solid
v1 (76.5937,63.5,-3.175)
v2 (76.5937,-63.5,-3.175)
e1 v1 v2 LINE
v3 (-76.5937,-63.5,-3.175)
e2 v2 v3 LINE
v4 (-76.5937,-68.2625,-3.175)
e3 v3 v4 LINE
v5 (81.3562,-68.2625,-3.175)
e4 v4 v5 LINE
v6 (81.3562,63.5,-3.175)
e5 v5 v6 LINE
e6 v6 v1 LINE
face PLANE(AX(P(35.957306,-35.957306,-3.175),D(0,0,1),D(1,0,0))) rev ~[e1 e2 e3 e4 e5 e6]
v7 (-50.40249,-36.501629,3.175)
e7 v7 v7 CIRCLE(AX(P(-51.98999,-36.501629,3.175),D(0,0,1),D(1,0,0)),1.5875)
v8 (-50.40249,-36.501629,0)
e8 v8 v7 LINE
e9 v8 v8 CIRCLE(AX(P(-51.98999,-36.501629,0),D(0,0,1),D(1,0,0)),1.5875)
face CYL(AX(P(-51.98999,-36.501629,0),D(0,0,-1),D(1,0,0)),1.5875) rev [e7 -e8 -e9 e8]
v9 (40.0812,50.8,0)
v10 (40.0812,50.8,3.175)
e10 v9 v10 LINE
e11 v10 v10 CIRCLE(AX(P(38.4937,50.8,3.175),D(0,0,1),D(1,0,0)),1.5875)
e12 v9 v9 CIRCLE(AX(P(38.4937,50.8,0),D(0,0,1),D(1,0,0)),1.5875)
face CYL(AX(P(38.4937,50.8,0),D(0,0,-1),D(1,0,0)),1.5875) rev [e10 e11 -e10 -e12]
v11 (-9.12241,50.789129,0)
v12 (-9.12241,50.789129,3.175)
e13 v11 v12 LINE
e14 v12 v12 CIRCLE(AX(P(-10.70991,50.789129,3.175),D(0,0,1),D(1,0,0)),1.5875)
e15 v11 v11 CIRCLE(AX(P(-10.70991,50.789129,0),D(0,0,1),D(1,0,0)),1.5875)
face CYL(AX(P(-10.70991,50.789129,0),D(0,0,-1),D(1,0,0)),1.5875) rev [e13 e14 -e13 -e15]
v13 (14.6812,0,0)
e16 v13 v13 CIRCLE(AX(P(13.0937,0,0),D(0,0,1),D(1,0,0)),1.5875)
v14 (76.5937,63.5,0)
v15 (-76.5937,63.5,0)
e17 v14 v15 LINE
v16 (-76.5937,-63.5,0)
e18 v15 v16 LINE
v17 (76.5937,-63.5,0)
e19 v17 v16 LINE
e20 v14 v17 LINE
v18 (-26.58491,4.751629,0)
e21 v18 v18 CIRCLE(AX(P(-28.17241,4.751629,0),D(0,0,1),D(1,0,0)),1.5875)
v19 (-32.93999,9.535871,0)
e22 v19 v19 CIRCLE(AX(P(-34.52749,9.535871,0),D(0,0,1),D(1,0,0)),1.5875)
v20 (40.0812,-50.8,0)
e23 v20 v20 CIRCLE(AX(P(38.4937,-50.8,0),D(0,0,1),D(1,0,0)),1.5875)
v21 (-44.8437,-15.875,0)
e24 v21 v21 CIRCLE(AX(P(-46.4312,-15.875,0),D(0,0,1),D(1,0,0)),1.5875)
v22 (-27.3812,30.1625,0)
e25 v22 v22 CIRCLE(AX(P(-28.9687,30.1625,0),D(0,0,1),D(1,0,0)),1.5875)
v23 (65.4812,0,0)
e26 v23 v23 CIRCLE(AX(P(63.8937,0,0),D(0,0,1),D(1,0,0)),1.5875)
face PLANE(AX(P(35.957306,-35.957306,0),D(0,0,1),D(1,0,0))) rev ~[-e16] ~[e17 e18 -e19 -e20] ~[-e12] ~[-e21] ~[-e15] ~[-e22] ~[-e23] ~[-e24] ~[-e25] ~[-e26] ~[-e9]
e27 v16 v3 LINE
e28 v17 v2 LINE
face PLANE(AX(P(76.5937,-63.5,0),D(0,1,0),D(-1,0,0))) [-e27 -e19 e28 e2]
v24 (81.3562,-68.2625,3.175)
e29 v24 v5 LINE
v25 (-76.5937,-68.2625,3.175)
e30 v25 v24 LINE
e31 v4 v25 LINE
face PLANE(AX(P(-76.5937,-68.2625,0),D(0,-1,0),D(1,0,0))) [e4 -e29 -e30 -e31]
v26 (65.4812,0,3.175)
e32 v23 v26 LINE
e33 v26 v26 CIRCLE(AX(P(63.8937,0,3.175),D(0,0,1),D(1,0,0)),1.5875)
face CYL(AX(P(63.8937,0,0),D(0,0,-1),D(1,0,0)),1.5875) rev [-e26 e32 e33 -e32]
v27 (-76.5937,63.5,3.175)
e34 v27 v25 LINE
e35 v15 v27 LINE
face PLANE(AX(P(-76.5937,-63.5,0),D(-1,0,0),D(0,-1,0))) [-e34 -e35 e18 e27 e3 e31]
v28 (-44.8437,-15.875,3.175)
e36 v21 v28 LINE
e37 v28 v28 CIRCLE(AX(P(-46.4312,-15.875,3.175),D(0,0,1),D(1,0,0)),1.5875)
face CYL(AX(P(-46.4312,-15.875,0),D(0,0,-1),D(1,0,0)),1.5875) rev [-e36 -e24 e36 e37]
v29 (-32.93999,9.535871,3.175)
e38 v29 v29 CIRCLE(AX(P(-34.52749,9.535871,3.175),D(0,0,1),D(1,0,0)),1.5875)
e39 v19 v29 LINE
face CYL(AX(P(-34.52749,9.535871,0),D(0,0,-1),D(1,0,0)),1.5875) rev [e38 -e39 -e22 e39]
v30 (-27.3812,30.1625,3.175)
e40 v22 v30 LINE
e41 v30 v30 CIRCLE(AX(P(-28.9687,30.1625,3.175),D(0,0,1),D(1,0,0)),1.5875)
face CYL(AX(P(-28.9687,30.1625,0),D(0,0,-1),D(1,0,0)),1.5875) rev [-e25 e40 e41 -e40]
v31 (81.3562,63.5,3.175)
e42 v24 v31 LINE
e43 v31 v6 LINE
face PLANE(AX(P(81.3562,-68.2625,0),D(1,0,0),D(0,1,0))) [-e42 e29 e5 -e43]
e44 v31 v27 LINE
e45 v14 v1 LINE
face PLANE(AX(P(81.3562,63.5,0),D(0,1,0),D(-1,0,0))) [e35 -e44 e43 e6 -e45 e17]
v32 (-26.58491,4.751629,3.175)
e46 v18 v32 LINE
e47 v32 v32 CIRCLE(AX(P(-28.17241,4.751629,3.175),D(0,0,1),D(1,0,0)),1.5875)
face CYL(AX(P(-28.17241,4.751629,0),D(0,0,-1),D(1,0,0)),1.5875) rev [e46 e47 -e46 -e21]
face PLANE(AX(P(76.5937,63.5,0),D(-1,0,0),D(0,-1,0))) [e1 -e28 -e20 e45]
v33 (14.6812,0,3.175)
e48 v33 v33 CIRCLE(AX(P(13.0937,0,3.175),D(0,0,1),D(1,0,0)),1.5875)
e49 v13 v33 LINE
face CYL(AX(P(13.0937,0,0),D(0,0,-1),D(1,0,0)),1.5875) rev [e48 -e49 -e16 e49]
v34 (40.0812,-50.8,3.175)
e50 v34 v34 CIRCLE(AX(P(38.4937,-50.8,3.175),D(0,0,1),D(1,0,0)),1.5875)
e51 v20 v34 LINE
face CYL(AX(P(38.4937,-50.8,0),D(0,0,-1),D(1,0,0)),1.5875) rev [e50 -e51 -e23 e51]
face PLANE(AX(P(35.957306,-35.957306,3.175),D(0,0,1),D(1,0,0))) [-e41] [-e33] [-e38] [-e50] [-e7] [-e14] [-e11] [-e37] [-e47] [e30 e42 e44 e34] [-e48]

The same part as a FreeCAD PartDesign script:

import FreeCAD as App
import Part
import Sketcher
from FreeCAD import Vector
Q = App.Units.Quantity


def add_polygon(sketch, points):
    """Adds a closed chain of lines whose ends are joined by coincident constraints."""
    first, n = sketch.GeometryCount, len(points)
    for a, b in zip(points, points[1:] + points[:1]):
        sketch.addGeometry(Part.LineSegment(App.Vector(*a, 0), App.Vector(*b, 0)), False)
    for i in range(n):
        sketch.addConstraint(Sketcher.Constraint("Coincident", first + i, 2, first + (i + 1) % n, 1))

doc = App.newDocument("Part")
body = doc.addObject("PartDesign::Body", "Body")

# Sketch on XY plane
sketch1 = body.newObject("Sketcher::SketchObject", "Sketch")
sketch1.AttachmentSupport = (doc.getObject("XY_Plane"), [""])
sketch1.MapMode = "FlatFace"
add_polygon(sketch1, [(-76.5937, -68.2625), (81.3562, -68.2625), (81.3562, 63.5), (-76.5937, 63.5)])  # lines 0-3
sketch1.addGeometry(Part.Circle(Vector(-51.98999, -36.501629, 0), Vector(0, 0, 1), 1.5875), False)  # 4
sketch1.addGeometry(Part.Circle(Vector(-46.4312, -15.875, 0), Vector(0, 0, 1), 1.5875), False)  # 5
sketch1.addGeometry(Part.Circle(Vector(38.4937, -50.8, 0), Vector(0, 0, 1), 1.5875), False)  # 6
sketch1.addGeometry(Part.Circle(Vector(13.0937, 0, 0), Vector(0, 0, 1), 1.5875), False)  # 7
sketch1.addGeometry(Part.Circle(Vector(63.8937, 0, 0), Vector(0, 0, 1), 1.5875), False)  # 8
sketch1.addGeometry(Part.Circle(Vector(-28.17241, 4.751629, 0), Vector(0, 0, 1), 1.5875), False)  # 9
sketch1.addGeometry(Part.Circle(Vector(-34.52749, 9.535871, 0), Vector(0, 0, 1), 1.5875), False)  # 10
sketch1.addGeometry(Part.Circle(Vector(-28.9687, 30.1625, 0), Vector(0, 0, 1), 1.5875), False)  # 11
sketch1.addGeometry(Part.Circle(Vector(-10.70991, 50.789129, 0), Vector(0, 0, 1), 1.5875), False)  # 12
sketch1.addGeometry(Part.Circle(Vector(38.4937, 50.8, 0), Vector(0, 0, 1), 1.5875), False)  # 13
sketch1.addConstraint(Sketcher.Constraint("Horizontal", 0))
sketch1.addConstraint(Sketcher.Constraint("Vertical", 1))
sketch1.addConstraint(Sketcher.Constraint("Horizontal", 2))
sketch1.addConstraint(Sketcher.Constraint("Vertical", 3))
sketch1.addConstraint(Sketcher.Constraint("Equal", 4, 5))
sketch1.addConstraint(Sketcher.Constraint("Equal", 5, 6))
sketch1.addConstraint(Sketcher.Constraint("Equal", 6, 7))
sketch1.addConstraint(Sketcher.Constraint("Equal", 7, 8))
sketch1.addConstraint(Sketcher.Constraint("Equal", 8, 9))
sketch1.addConstraint(Sketcher.Constraint("Equal", 9, 10))
sketch1.addConstraint(Sketcher.Constraint("Equal", 10, 11))
sketch1.addConstraint(Sketcher.Constraint("Equal", 11, 12))
sketch1.addConstraint(Sketcher.Constraint("Equal", 12, 13))
sketch1.addConstraint(Sketcher.Constraint("Symmetric", 6, 3, 13, 3, -1))
sketch1.addConstraint(Sketcher.Constraint("PointOnObject", 7, 3, -1))
sketch1.addConstraint(Sketcher.Constraint("PointOnObject", 8, 3, -1))
sketch1.addConstraint(Sketcher.Constraint("Diameter", 4, Q("0.125 in")))
sketch1.addConstraint(Sketcher.Constraint("DistanceY", 6, 3, -1, 1, Q("2 in")))
sketch1.addConstraint(Sketcher.Constraint("DistanceX", 7, 3, 6, 3, Q("1 in")))
sketch1.addConstraint(Sketcher.Constraint("DistanceX", 7, 3, 8, 3, Q("2 in")))
sketch1.addConstraint(Sketcher.Constraint("DistanceY", -1, 1, 1, 2, Q("2.5 in")))
sketch1.addConstraint(Sketcher.Constraint("DistanceY", 1, 1, 1, 2, Q("5.1875 in")))
sketch1.addConstraint(Sketcher.Constraint("DistanceX", 0, 1, 0, 2, Q("6.2185 in")))
sketch1.addConstraint(Sketcher.Constraint("DistanceX", 5, 3, -1, 1, Q("1.828 in")))
sketch1.addConstraint(Sketcher.Constraint("DistanceY", 5, 3, -1, 1, Q("0.625 in")))
sketch1.addConstraint(Sketcher.Constraint("DistanceY", -1, 1, 11, 3, Q("1.1875 in")))
sketch1.addConstraint(Sketcher.Constraint("DistanceX", -1, 1, 0, 2, Q("3.203 in")))
sketch1.addConstraint(Sketcher.Constraint("DistanceX", 4, 3, 10, 3, Q("0.6875 in")))
sketch1.addConstraint(Sketcher.Constraint("DistanceY", 4, 3, 10, 3, Q("1.8125 in")))
sketch1.addConstraint(Sketcher.Constraint("DistanceX", 5, 3, 11, 3, Q("0.6875 in")))
sketch1.addConstraint(Sketcher.Constraint("DistanceX", 11, 3, 7, 3, Q("1.656 in")))
sketch1.addConstraint(Sketcher.Constraint("DistanceX", 9, 3, 12, 3, Q("0.6875 in")))
sketch1.addConstraint(Sketcher.Constraint("DistanceY", 9, 3, 12, 3, Q("1.8125 in")))
sketch1.addConstraint(Sketcher.Constraint("DistanceX", 4, 3, 9, 3, Q("0.9377 in")))
sketch1.addConstraint(Sketcher.Constraint("DistanceX", 4, 3, -1, 1, Q("51.98999 mm")))
sketch1.addConstraint(Sketcher.Constraint("DistanceY", 4, 3, -1, 1, Q("36.501629 mm")))
sketch1.addConstraint(Sketcher.Constraint("DistanceY", -1, 1, 9, 3, Q("4.751629 mm")))
pad1 = body.newObject("PartDesign::Pad", "Pad")
pad1.Profile = sketch1
pad1.Length = Q("0.125 in")

# Sketch on XY plane
sketch2 = body.newObject("Sketcher::SketchObject", "Sketch001")
sketch2.AttachmentSupport = (doc.getObject("XY_Plane"), [""])
sketch2.MapMode = "FlatFace"
add_polygon(sketch2, [(76.5937, 63.5), (76.5937, -63.5), (-76.5937, -63.5), (-76.5937, -68.2625), (81.3562, -68.2625), (81.3562, 63.5)])  # lines 0-5
sketch2.addConstraint(Sketcher.Constraint("Vertical", 0))
sketch2.addConstraint(Sketcher.Constraint("Horizontal", 1))
sketch2.addConstraint(Sketcher.Constraint("Vertical", 2))
sketch2.addConstraint(Sketcher.Constraint("Horizontal", 3))
sketch2.addConstraint(Sketcher.Constraint("Vertical", 4))
sketch2.addConstraint(Sketcher.Constraint("Horizontal", 5))
sketch2.addConstraint(Sketcher.Constraint("Symmetric", 1, 2, 5, 2, -1, 1))
sketch2.addConstraint(Sketcher.Constraint("Equal", 5, 2))
sketch2.addConstraint(Sketcher.Constraint("DistanceY", 0, 2, 0, 1, Q("5 in")))
sketch2.addConstraint(Sketcher.Constraint("DistanceX", 1, 2, 1, 1, Q("6.031 in")))
sketch2.addConstraint(Sketcher.Constraint("DistanceX", 5, 2, 5, 1, Q("0.1875 in")))
pad2 = body.newObject("PartDesign::Pad", "Pad001")
pad2.Profile = sketch2
pad2.Length = Q("0.125 in")
pad2.Reversed = True

doc.recompute()
